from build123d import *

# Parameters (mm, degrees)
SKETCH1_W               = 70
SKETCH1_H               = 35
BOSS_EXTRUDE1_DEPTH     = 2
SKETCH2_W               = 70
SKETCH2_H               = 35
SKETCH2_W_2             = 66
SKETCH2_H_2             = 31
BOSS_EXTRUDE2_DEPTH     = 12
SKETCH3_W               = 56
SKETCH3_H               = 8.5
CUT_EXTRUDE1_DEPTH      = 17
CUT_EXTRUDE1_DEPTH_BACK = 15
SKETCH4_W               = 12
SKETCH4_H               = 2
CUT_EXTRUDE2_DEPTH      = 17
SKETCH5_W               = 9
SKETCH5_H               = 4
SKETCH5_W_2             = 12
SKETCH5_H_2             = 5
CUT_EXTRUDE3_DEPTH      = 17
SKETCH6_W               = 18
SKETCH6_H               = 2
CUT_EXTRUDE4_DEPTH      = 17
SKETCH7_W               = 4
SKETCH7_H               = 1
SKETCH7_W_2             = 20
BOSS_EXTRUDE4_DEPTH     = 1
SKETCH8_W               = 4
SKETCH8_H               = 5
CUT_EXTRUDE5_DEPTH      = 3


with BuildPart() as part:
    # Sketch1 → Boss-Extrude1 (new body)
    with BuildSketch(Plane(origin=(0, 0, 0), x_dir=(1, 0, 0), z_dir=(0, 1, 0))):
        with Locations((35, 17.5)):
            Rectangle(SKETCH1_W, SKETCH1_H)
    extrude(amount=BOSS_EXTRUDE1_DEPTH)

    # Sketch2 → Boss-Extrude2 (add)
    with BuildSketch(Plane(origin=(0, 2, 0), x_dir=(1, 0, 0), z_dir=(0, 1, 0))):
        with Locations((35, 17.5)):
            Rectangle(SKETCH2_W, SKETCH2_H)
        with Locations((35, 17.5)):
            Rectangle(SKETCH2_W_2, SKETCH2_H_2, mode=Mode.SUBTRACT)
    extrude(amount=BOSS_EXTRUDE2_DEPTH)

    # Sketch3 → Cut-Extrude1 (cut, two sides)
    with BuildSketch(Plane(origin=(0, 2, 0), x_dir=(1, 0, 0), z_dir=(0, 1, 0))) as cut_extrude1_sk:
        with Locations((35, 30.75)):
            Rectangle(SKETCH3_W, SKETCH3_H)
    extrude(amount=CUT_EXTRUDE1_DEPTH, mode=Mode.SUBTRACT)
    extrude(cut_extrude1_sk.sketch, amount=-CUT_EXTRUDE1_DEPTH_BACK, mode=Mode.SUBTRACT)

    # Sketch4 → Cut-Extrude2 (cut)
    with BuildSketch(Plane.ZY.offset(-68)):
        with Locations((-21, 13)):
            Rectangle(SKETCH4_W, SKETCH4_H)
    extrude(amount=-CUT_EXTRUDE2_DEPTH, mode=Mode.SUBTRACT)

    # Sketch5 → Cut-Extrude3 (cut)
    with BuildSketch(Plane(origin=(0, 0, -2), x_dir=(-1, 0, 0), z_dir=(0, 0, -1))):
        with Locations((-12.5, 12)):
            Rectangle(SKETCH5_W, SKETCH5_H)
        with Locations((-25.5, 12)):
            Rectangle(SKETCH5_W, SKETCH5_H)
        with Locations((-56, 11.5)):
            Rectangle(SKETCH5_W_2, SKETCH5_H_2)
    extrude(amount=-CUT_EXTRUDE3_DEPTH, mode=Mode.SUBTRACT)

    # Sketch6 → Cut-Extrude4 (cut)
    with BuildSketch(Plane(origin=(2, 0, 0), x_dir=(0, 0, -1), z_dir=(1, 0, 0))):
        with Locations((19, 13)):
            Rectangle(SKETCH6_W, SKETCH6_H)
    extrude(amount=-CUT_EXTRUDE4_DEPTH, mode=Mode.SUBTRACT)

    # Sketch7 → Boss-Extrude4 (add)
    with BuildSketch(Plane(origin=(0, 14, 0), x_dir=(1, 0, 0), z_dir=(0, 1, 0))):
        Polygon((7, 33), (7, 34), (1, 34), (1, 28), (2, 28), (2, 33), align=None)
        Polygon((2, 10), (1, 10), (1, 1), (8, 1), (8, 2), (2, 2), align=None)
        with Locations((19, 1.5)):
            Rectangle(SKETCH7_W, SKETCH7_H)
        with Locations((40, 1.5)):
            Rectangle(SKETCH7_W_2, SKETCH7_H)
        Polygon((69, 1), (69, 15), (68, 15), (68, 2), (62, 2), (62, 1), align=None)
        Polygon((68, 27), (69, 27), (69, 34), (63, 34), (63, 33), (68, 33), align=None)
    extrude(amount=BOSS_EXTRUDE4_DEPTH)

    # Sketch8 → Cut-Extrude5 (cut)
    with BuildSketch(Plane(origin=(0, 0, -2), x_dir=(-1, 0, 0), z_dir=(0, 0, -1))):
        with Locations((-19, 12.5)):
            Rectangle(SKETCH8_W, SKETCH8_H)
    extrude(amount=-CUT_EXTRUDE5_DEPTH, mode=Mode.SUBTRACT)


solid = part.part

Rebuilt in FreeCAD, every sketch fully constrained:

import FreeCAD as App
import Part
import Sketcher
Q = App.Units.Quantity

doc = App.newDocument("Part")
body = doc.addObject("PartDesign::Body", "Body")

sketch1 = body.newObject("Sketcher::SketchObject", "Sketch")
sketch1.AttachmentSupport = (doc.getObject("XZ_Plane"), [""])
sketch1.MapMode = "FlatFace"
sketch1.addGeometry([
    Part.LineSegment(App.Vector(0, -35, 0), App.Vector(0, 0, 0)),
    Part.LineSegment(App.Vector(0, 0, 0), App.Vector(70, 0, 0)),
    Part.LineSegment(App.Vector(70, 0, 0), App.Vector(70, -35, 0)),
    Part.LineSegment(App.Vector(70, -35, 0), App.Vector(0, -35, 0)),
], False)
sketch1.addConstraint([
    Sketcher.Constraint("Coincident", 0, 2, 1, 1),
    Sketcher.Constraint("Coincident", 1, 2, 2, 1),
    Sketcher.Constraint("Coincident", 2, 2, 3, 1),
    Sketcher.Constraint("Coincident", 3, 2, 0, 1),
    Sketcher.Constraint("Vertical", 0),
    Sketcher.Constraint("Horizontal", 1),
    Sketcher.Constraint("Vertical", 2),
    Sketcher.Constraint("Horizontal", 3),
    Sketcher.Constraint("Coincident", 0, 2, -1, 1),
    Sketcher.Constraint("DistanceX", 1, 1, 1, 2, Q("70 mm")),
    Sketcher.Constraint("DistanceY", 0, 1, 0, 2, Q("35 mm")),
])
pad1 = body.newObject("PartDesign::Pad", "Pad")
pad1.Profile = sketch1
pad1.Length = 2
pad1.Reversed = True

sketch2 = body.newObject("Sketcher::SketchObject", "Sketch001")
sketch2.AttachmentSupport = (doc.getObject("XZ_Plane"), [""])
sketch2.MapMode = "FlatFace"
sketch2.AttachmentOffset = App.Placement(App.Vector(0, 0, -2), App.Rotation())
sketch2.addGeometry([
    Part.LineSegment(App.Vector(0, -35, 0), App.Vector(0, 0, 0)),
    Part.LineSegment(App.Vector(0, 0, 0), App.Vector(70, 0, 0)),
    Part.LineSegment(App.Vector(70, 0, 0), App.Vector(70, -35, 0)),
    Part.LineSegment(App.Vector(70, -35, 0), App.Vector(0, -35, 0)),
    Part.LineSegment(App.Vector(68, -2, 0), App.Vector(2, -2, 0)),
    Part.LineSegment(App.Vector(2, -2, 0), App.Vector(2, -33, 0)),
    Part.LineSegment(App.Vector(2, -33, 0), App.Vector(68, -33, 0)),
    Part.LineSegment(App.Vector(68, -33, 0), App.Vector(68, -2, 0)),
], False)
sketch2.addConstraint([
    Sketcher.Constraint("Coincident", 0, 2, 1, 1),
    Sketcher.Constraint("Coincident", 1, 2, 2, 1),
    Sketcher.Constraint("Coincident", 2, 2, 3, 1),
    Sketcher.Constraint("Coincident", 3, 2, 0, 1),
    Sketcher.Constraint("Coincident", 4, 2, 5, 1),
    Sketcher.Constraint("Coincident", 5, 2, 6, 1),
    Sketcher.Constraint("Coincident", 6, 2, 7, 1),
    Sketcher.Constraint("Coincident", 7, 2, 4, 1),
    Sketcher.Constraint("Vertical", 0),
    Sketcher.Constraint("Horizontal", 1),
    Sketcher.Constraint("Vertical", 2),
    Sketcher.Constraint("Horizontal", 3),
    Sketcher.Constraint("Horizontal", 4),
    Sketcher.Constraint("Vertical", 5),
    Sketcher.Constraint("Horizontal", 6),
    Sketcher.Constraint("Vertical", 7),
    Sketcher.Constraint("Coincident", 0, 2, -1, 1),
    Sketcher.Constraint("DistanceX", 1, 1, 1, 2, Q("70 mm")),
    Sketcher.Constraint("DistanceX", 4, 2, 4, 1, Q("66 mm")),
    Sketcher.Constraint("DistanceY", 0, 1, 0, 2, Q("35 mm")),
    Sketcher.Constraint("DistanceY", 5, 2, 5, 1, Q("31 mm")),
    Sketcher.Constraint("DistanceX", -1, 1, 4, 2, Q("2 mm")),
    Sketcher.Constraint("DistanceY", 4, 2, -1, 1, Q("2 mm")),
])
pad2 = body.newObject("PartDesign::Pad", "Pad001")
pad2.Profile = sketch2
pad2.Length = 12
pad2.Reversed = True

sketch3 = body.newObject("Sketcher::SketchObject", "Sketch002")
sketch3.AttachmentSupport = (doc.getObject("XZ_Plane"), [""])
sketch3.MapMode = "FlatFace"
sketch3.AttachmentOffset = App.Placement(App.Vector(0, 0, -2), App.Rotation())
sketch3.addGeometry([
    Part.LineSegment(App.Vector(7, -35, 0), App.Vector(7, -26, 0)),
    Part.LineSegment(App.Vector(7, -26, 0), App.Vector(63, -26, 0)),
    Part.LineSegment(App.Vector(63, -26, 0), App.Vector(63, -35, 0)),
    Part.LineSegment(App.Vector(63, -35, 0), App.Vector(7, -35, 0)),
], False)
sketch3.addConstraint([
    Sketcher.Constraint("Coincident", 0, 2, 1, 1),
    Sketcher.Constraint("Coincident", 1, 2, 2, 1),
    Sketcher.Constraint("Coincident", 2, 2, 3, 1),
    Sketcher.Constraint("Coincident", 3, 2, 0, 1),
    Sketcher.Constraint("Vertical", 0),
    Sketcher.Constraint("Horizontal", 1),
    Sketcher.Constraint("Vertical", 2),
    Sketcher.Constraint("Horizontal", 3),
    Sketcher.Constraint("DistanceX", 1, 1, 1, 2, Q("56 mm")),
    Sketcher.Constraint("DistanceY", 0, 1, 0, 2, Q("8.5 mm")),
    Sketcher.Constraint("DistanceX", -1, 1, 0, 2, Q("7 mm")),
    Sketcher.Constraint("DistanceY", 2, 2, -1, 1, Q("35 mm")),
])
pocket1 = body.newObject("PartDesign::Pocket", "Pocket")
pocket1.Profile = sketch3
pocket1.Type = "ThroughAll"
pocket1.Midplane = True

sketch4 = body.newObject("Sketcher::SketchObject", "Sketch003")
sketch4.AttachmentSupport = (doc.getObject("YZ_Plane"), [""])
sketch4.MapMode = "FlatFace"
sketch4.AttachmentOffset = App.Placement(App.Vector(0, 0, 68), App.Rotation())
sketch4.addGeometry([
    Part.LineSegment(App.Vector(14, -27, 0), App.Vector(12, -27, 0)),
    Part.LineSegment(App.Vector(12, -27, 0), App.Vector(12, -15, 0)),
    Part.LineSegment(App.Vector(12, -15, 0), App.Vector(14, -15, 0)),
    Part.LineSegment(App.Vector(14, -15, 0), App.Vector(14, -27, 0)),
], False)
sketch4.addConstraint([
    Sketcher.Constraint("Coincident", 0, 2, 1, 1),
    Sketcher.Constraint("Coincident", 1, 2, 2, 1),
    Sketcher.Constraint("Coincident", 2, 2, 3, 1),
    Sketcher.Constraint("Coincident", 3, 2, 0, 1),
    Sketcher.Constraint("Horizontal", 0),
    Sketcher.Constraint("Vertical", 1),
    Sketcher.Constraint("Horizontal", 2),
    Sketcher.Constraint("Vertical", 3),
    Sketcher.Constraint("DistanceX", 0, 2, 0, 1, Q("2 mm")),
    Sketcher.Constraint("DistanceY", 1, 1, 1, 2, Q("12 mm")),
    Sketcher.Constraint("DistanceX", -1, 1, 0, 2, Q("12 mm")),
    Sketcher.Constraint("DistanceY", 0, 2, -1, 1, Q("27 mm")),
])
pocket2 = body.newObject("PartDesign::Pocket", "Pocket001")
pocket2.Profile = sketch4
pocket2.Length = 17
pocket2.Reversed = True

sketch5 = body.newObject("Sketcher::SketchObject", "Sketch004")
sketch5.AttachmentSupport = (doc.getObject("XY_Plane"), [""])
sketch5.MapMode = "FlatFace"
sketch5.AttachmentOffset = App.Placement(App.Vector(0, 0, -2), App.Rotation())
sketch5.addGeometry([
    Part.LineSegment(App.Vector(17, 14, 0), App.Vector(17, 10, 0)),
    Part.LineSegment(App.Vector(17, 10, 0), App.Vector(8, 10, 0)),
    Part.LineSegment(App.Vector(8, 10, 0), App.Vector(8, 14, 0)),
    Part.LineSegment(App.Vector(8, 14, 0), App.Vector(17, 14, 0)),
    Part.LineSegment(App.Vector(30, 14, 0), App.Vector(30, 10, 0)),
    Part.LineSegment(App.Vector(30, 10, 0), App.Vector(21, 10, 0)),
    Part.LineSegment(App.Vector(21, 10, 0), App.Vector(21, 14, 0)),
    Part.LineSegment(App.Vector(21, 14, 0), App.Vector(30, 14, 0)),
    Part.LineSegment(App.Vector(62, 14, 0), App.Vector(62, 9, 0)),
    Part.LineSegment(App.Vector(62, 9, 0), App.Vector(50, 9, 0)),
    Part.LineSegment(App.Vector(50, 9, 0), App.Vector(50, 14, 0)),
    Part.LineSegment(App.Vector(50, 14, 0), App.Vector(62, 14, 0)),
], False)
sketch5.addConstraint([
    Sketcher.Constraint("Coincident", 0, 2, 1, 1),
    Sketcher.Constraint("Coincident", 1, 2, 2, 1),
    Sketcher.Constraint("Coincident", 2, 2, 3, 1),
    Sketcher.Constraint("Coincident", 3, 2, 0, 1),
    Sketcher.Constraint("Coincident", 4, 2, 5, 1),
    Sketcher.Constraint("Coincident", 5, 2, 6, 1),
    Sketcher.Constraint("Coincident", 6, 2, 7, 1),
    Sketcher.Constraint("Coincident", 7, 2, 4, 1),
    Sketcher.Constraint("Coincident", 8, 2, 9, 1),
    Sketcher.Constraint("Coincident", 9, 2, 10, 1),
    Sketcher.Constraint("Coincident", 10, 2, 11, 1),
    Sketcher.Constraint("Coincident", 11, 2, 8, 1),
    Sketcher.Constraint("Vertical", 0),
    Sketcher.Constraint("Horizontal", 1),
    Sketcher.Constraint("Vertical", 2),
    Sketcher.Constraint("Horizontal", 3),
    Sketcher.Constraint("Vertical", 4),
    Sketcher.Constraint("Horizontal", 5),
    Sketcher.Constraint("Vertical", 6),
    Sketcher.Constraint("Horizontal", 7),
    Sketcher.Constraint("Vertical", 8),
    Sketcher.Constraint("Horizontal", 9),
    Sketcher.Constraint("Vertical", 10),
    Sketcher.Constraint("Horizontal", 11),
    Sketcher.Constraint("Horizontal", 1, 2, 4, 2),
    Sketcher.Constraint("Horizontal", 3, 2, 6, 2),
    Sketcher.Constraint("Horizontal", 7, 2, 10, 2),
    Sketcher.Constraint("Equal", 3, 5),
    Sketcher.Constraint("DistanceX", 1, 2, 1, 1, Q("9 mm")),
    Sketcher.Constraint("DistanceX", 9, 2, 9, 1, Q("12 mm")),
    Sketcher.Constraint("DistanceY", 0, 2, 0, 1, Q("4 mm")),
    Sketcher.Constraint("DistanceY", 8, 2, 8, 1, Q("5 mm")),
    Sketcher.Constraint("DistanceX", -1, 1, 0, 2, Q("17 mm")),
    Sketcher.Constraint("DistanceY", -1, 1, 0, 2, Q("10 mm")),
    Sketcher.Constraint("DistanceX", -1, 1, 4, 2, Q("30 mm")),
    Sketcher.Constraint("DistanceX", -1, 1, 8, 2, Q("62 mm")),
])
pocket3 = body.newObject("PartDesign::Pocket", "Pocket002")
pocket3.Profile = sketch5
pocket3.Length = 17
pocket3.Reversed = True

sketch6 = body.newObject("Sketcher::SketchObject", "Sketch005")
sketch6.AttachmentSupport = (doc.getObject("YZ_Plane"), [""])
sketch6.MapMode = "FlatFace"
sketch6.AttachmentOffset = App.Placement(App.Vector(0, 0, 2), App.Rotation())
sketch6.addGeometry([
    Part.LineSegment(App.Vector(14, -10, 0), App.Vector(12, -10, 0)),
    Part.LineSegment(App.Vector(12, -10, 0), App.Vector(12, -28, 0)),
    Part.LineSegment(App.Vector(12, -28, 0), App.Vector(14, -28, 0)),
    Part.LineSegment(App.Vector(14, -28, 0), App.Vector(14, -10, 0)),
], False)
sketch6.addConstraint([
    Sketcher.Constraint("Coincident", 0, 2, 1, 1),
    Sketcher.Constraint("Coincident", 1, 2, 2, 1),
    Sketcher.Constraint("Coincident", 2, 2, 3, 1),
    Sketcher.Constraint("Coincident", 3, 2, 0, 1),
    Sketcher.Constraint("Horizontal", 0),
    Sketcher.Constraint("Vertical", 1),
    Sketcher.Constraint("Horizontal", 2),
    Sketcher.Constraint("Vertical", 3),
    Sketcher.Constraint("DistanceX", 0, 2, 0, 1, Q("2 mm")),
    Sketcher.Constraint("DistanceY", 1, 2, 1, 1, Q("18 mm")),
    Sketcher.Constraint("DistanceX", -1, 1, 0, 2, Q("12 mm")),
    Sketcher.Constraint("DistanceY", 0, 2, -1, 1, Q("10 mm")),
])
pocket4 = body.newObject("PartDesign::Pocket", "Pocket003")
pocket4.Profile = sketch6
pocket4.Length = 17

sketch7 = body.newObject("Sketcher::SketchObject", "Sketch006")
sketch7.AttachmentSupport = (doc.getObject("XZ_Plane"), [""])
sketch7.MapMode = "FlatFace"
sketch7.AttachmentOffset = App.Placement(App.Vector(0, 0, -14), App.Rotation())
sketch7.addGeometry([
    Part.LineSegment(App.Vector(7, -33, 0), App.Vector(7, -34, 0)),
    Part.LineSegment(App.Vector(7, -34, 0), App.Vector(1, -34, 0)),
    Part.LineSegment(App.Vector(1, -34, 0), App.Vector(1, -28, 0)),
    Part.LineSegment(App.Vector(1, -28, 0), App.Vector(2, -28, 0)),
    Part.LineSegment(App.Vector(2, -28, 0), App.Vector(2, -33, 0)),
    Part.LineSegment(App.Vector(2, -33, 0), App.Vector(7, -33, 0)),
    Part.LineSegment(App.Vector(2, -10, 0), App.Vector(1, -10, 0)),
    Part.LineSegment(App.Vector(1, -10, 0), App.Vector(1, -1, 0)),
    Part.LineSegment(App.Vector(1, -1, 0), App.Vector(8, -1, 0)),
    Part.LineSegment(App.Vector(8, -1, 0), App.Vector(8, -2, 0)),
    Part.LineSegment(App.Vector(8, -2, 0), App.Vector(2, -2, 0)),
    Part.LineSegment(App.Vector(2, -2, 0), App.Vector(2, -10, 0)),
    Part.LineSegment(App.Vector(17, -2, 0), App.Vector(17, -1, 0)),
    Part.LineSegment(App.Vector(17, -1, 0), App.Vector(21, -1, 0)),
    Part.LineSegment(App.Vector(21, -1, 0), App.Vector(21, -2, 0)),
    Part.LineSegment(App.Vector(21, -2, 0), App.Vector(17, -2, 0)),
    Part.LineSegment(App.Vector(30, -2, 0), App.Vector(30, -1, 0)),
    Part.LineSegment(App.Vector(30, -1, 0), App.Vector(50, -1, 0)),
    Part.LineSegment(App.Vector(50, -1, 0), App.Vector(50, -2, 0)),
    Part.LineSegment(App.Vector(50, -2, 0), App.Vector(30, -2, 0)),
    Part.LineSegment(App.Vector(69, -1, 0), App.Vector(69, -15, 0)),
    Part.LineSegment(App.Vector(69, -15, 0), App.Vector(68, -15, 0)),
    Part.LineSegment(App.Vector(68, -15, 0), App.Vector(68, -2, 0)),
    Part.LineSegment(App.Vector(68, -2, 0), App.Vector(62, -2, 0)),
    Part.LineSegment(App.Vector(62, -2, 0), App.Vector(62, -1, 0)),
    Part.LineSegment(App.Vector(62, -1, 0), App.Vector(69, -1, 0)),
    Part.LineSegment(App.Vector(68, -27, 0), App.Vector(69, -27, 0)),
    Part.LineSegment(App.Vector(69, -27, 0), App.Vector(69, -34, 0)),
    Part.LineSegment(App.Vector(69, -34, 0), App.Vector(63, -34, 0)),
    Part.LineSegment(App.Vector(63, -34, 0), App.Vector(63, -33, 0)),
    Part.LineSegment(App.Vector(63, -33, 0), App.Vector(68, -33, 0)),
    Part.LineSegment(App.Vector(68, -33, 0), App.Vector(68, -27, 0)),
], False)
sketch7.addConstraint([
    Sketcher.Constraint("Coincident", 0, 2, 1, 1),
    Sketcher.Constraint("Coincident", 1, 2, 2, 1),
    Sketcher.Constraint("Coincident", 2, 2, 3, 1),
    Sketcher.Constraint("Coincident", 3, 2, 4, 1),
    Sketcher.Constraint("Coincident", 4, 2, 5, 1),
    Sketcher.Constraint("Coincident", 5, 2, 0, 1),
    Sketcher.Constraint("Coincident", 6, 2, 7, 1),
    Sketcher.Constraint("Coincident", 7, 2, 8, 1),
    Sketcher.Constraint("Coincident", 8, 2, 9, 1),
    Sketcher.Constraint("Coincident", 9, 2, 10, 1),
    Sketcher.Constraint("Coincident", 10, 2, 11, 1),
    Sketcher.Constraint("Coincident", 11, 2, 6, 1),
    Sketcher.Constraint("Coincident", 12, 2, 13, 1),
    Sketcher.Constraint("Coincident", 13, 2, 14, 1),
    Sketcher.Constraint("Coincident", 14, 2, 15, 1),
    Sketcher.Constraint("Coincident", 15, 2, 12, 1),
    Sketcher.Constraint("Coincident", 16, 2, 17, 1),
    Sketcher.Constraint("Coincident", 17, 2, 18, 1),
    Sketcher.Constraint("Coincident", 18, 2, 19, 1),
    Sketcher.Constraint("Coincident", 19, 2, 16, 1),
    Sketcher.Constraint("Coincident", 20, 2, 21, 1),
    Sketcher.Constraint("Coincident", 21, 2, 22, 1),
    Sketcher.Constraint("Coincident", 22, 2, 23, 1),
    Sketcher.Constraint("Coincident", 23, 2, 24, 1),
    Sketcher.Constraint("Coincident", 24, 2, 25, 1),
    Sketcher.Constraint("Coincident", 25, 2, 20, 1),
    Sketcher.Constraint("Coincident", 26, 2, 27, 1),
    Sketcher.Constraint("Coincident", 27, 2, 28, 1),
    Sketcher.Constraint("Coincident", 28, 2, 29, 1),
    Sketcher.Constraint("Coincident", 29, 2, 30, 1),
    Sketcher.Constraint("Coincident", 30, 2, 31, 1),
    Sketcher.Constraint("Coincident", 31, 2, 26, 1),
    Sketcher.Constraint("Vertical", 0),
    Sketcher.Constraint("Horizontal", 1),
    Sketcher.Constraint("Vertical", 2),
    Sketcher.Constraint("Horizontal", 3),
    Sketcher.Constraint("Vertical", 4),
    Sketcher.Constraint("Horizontal", 5),
    Sketcher.Constraint("Horizontal", 6),
    Sketcher.Constraint("Vertical", 7),
    Sketcher.Constraint("Horizontal", 8),
    Sketcher.Constraint("Vertical", 9),
    Sketcher.Constraint("Horizontal", 10),
    Sketcher.Constraint("Vertical", 11),
    Sketcher.Constraint("Vertical", 12),
    Sketcher.Constraint("Horizontal", 13),
    Sketcher.Constraint("Vertical", 14),
    Sketcher.Constraint("Horizontal", 15),
    Sketcher.Constraint("Vertical", 16),
    Sketcher.Constraint("Horizontal", 17),
    Sketcher.Constraint("Vertical", 18),
    Sketcher.Constraint("Horizontal", 19),
    Sketcher.Constraint("Vertical", 20),
    Sketcher.Constraint("Horizontal", 21),
    Sketcher.Constraint("Vertical", 22),
    Sketcher.Constraint("Horizontal", 23),
    Sketcher.Constraint("Vertical", 24),
    Sketcher.Constraint("Horizontal", 25),
    Sketcher.Constraint("Horizontal", 26),
    Sketcher.Constraint("Vertical", 27),
    Sketcher.Constraint("Horizontal", 28),
    Sketcher.Constraint("Vertical", 29),
    Sketcher.Constraint("Horizontal", 30),
    Sketcher.Constraint("Vertical", 31),
    Sketcher.Constraint("Horizontal", 8, 2, 12, 2),
    Sketcher.Constraint("Horizontal", 10, 2, 14, 2),
    Sketcher.Constraint("Horizontal", 13, 2, 16, 2),
    Sketcher.Constraint("Horizontal", 15, 2, 18, 2),
    Sketcher.Constraint("Horizontal", 19, 2, 22, 2),
    Sketcher.Constraint("Horizontal", 17, 2, 24, 2),
    Sketcher.Constraint("Horizontal", 1, 2, 27, 2),
    Sketcher.Constraint("Horizontal", 5, 2, 29, 2),
    Sketcher.Constraint("Vertical", 2, 2, 6, 2),
    Sketcher.Constraint("Vertical", 4, 2, 10, 2),
    Sketcher.Constraint("Vertical", 25, 2, 26, 2),
    Sketcher.Constraint("Vertical", 22, 2, 30, 2),
    Sketcher.Constraint("Equal", 1, 10),
    Sketcher.Constraint("Equal", 6, 21),
    Sketcher.Constraint("Equal", 10, 23),
    Sketcher.Constraint("Equal", 23, 28),
    Sketcher.Constraint("Equal", 26, 0),
    Sketcher.Constraint("Equal", 28, 2),
    Sketcher.Constraint("Equal", 0, 9),
    Sketcher.Constraint("Equal", 25, 27),
    Sketcher.Constraint("DistanceX", 1, 2, 1, 1, Q("6 mm")),
    Sketcher.Constraint("DistanceX", 3, 1, 3, 2, Q("1 mm")),
    Sketcher.Constraint("DistanceX", 13, 1, 13, 2, Q("4 mm")),
    Sketcher.Constraint("DistanceX", 17, 1, 17, 2, Q("20 mm")),
    Sketcher.Constraint("DistanceY", 7, 1, 7, 2, Q("9 mm")),
    Sketcher.Constraint("DistanceY", 20, 2, 20, 1, Q("14 mm")),
    Sketcher.Constraint("DistanceX", -1, 1, 0, 2, Q("7 mm")),
    Sketcher.Constraint("DistanceY", 0, 2, -1, 1, Q("34 mm")),
    Sketcher.Constraint("DistanceY", 6, 2, -1, 1, Q("10 mm")),
    Sketcher.Constraint("DistanceX", -1, 1, 12, 2, Q("17 mm")),
    Sketcher.Constraint("DistanceX", -1, 1, 16, 2, Q("30 mm")),
    Sketcher.Constraint("DistanceX", -1, 1, 20, 2, Q("69 mm")),
])
pad3 = body.newObject("PartDesign::Pad", "Pad002")
pad3.Profile = sketch7
pad3.Length = 1
pad3.Reversed = True

sketch8 = body.newObject("Sketcher::SketchObject", "Sketch007")
sketch8.AttachmentSupport = (doc.getObject("XY_Plane"), [""])
sketch8.MapMode = "FlatFace"
sketch8.AttachmentOffset = App.Placement(App.Vector(0, 0, -2), App.Rotation())
sketch8.addGeometry([
    Part.LineSegment(App.Vector(21, 15, 0), App.Vector(21, 10, 0)),
    Part.LineSegment(App.Vector(21, 10, 0), App.Vector(17, 10, 0)),
    Part.LineSegment(App.Vector(17, 10, 0), App.Vector(17, 15, 0)),
    Part.LineSegment(App.Vector(17, 15, 0), App.Vector(21, 15, 0)),
], False)
sketch8.addConstraint([
    Sketcher.Constraint("Coincident", 0, 2, 1, 1),
    Sketcher.Constraint("Coincident", 1, 2, 2, 1),
    Sketcher.Constraint("Coincident", 2, 2, 3, 1),
    Sketcher.Constraint("Coincident", 3, 2, 0, 1),
    Sketcher.Constraint("Vertical", 0),
    Sketcher.Constraint("Horizontal", 1),
    Sketcher.Constraint("Vertical", 2),
    Sketcher.Constraint("Horizontal", 3),
    Sketcher.Constraint("DistanceX", 1, 2, 1, 1, Q("4 mm")),
    Sketcher.Constraint("DistanceY", 0, 2, 0, 1, Q("5 mm")),
    Sketcher.Constraint("DistanceX", -1, 1, 0, 2, Q("21 mm")),
    Sketcher.Constraint("DistanceY", -1, 1, 0, 2, Q("10 mm")),
])
pocket5 = body.newObject("PartDesign::Pocket", "Pocket004")
pocket5.Profile = sketch8
pocket5.Length = 3
pocket5.Reversed = True

doc.recompute()
